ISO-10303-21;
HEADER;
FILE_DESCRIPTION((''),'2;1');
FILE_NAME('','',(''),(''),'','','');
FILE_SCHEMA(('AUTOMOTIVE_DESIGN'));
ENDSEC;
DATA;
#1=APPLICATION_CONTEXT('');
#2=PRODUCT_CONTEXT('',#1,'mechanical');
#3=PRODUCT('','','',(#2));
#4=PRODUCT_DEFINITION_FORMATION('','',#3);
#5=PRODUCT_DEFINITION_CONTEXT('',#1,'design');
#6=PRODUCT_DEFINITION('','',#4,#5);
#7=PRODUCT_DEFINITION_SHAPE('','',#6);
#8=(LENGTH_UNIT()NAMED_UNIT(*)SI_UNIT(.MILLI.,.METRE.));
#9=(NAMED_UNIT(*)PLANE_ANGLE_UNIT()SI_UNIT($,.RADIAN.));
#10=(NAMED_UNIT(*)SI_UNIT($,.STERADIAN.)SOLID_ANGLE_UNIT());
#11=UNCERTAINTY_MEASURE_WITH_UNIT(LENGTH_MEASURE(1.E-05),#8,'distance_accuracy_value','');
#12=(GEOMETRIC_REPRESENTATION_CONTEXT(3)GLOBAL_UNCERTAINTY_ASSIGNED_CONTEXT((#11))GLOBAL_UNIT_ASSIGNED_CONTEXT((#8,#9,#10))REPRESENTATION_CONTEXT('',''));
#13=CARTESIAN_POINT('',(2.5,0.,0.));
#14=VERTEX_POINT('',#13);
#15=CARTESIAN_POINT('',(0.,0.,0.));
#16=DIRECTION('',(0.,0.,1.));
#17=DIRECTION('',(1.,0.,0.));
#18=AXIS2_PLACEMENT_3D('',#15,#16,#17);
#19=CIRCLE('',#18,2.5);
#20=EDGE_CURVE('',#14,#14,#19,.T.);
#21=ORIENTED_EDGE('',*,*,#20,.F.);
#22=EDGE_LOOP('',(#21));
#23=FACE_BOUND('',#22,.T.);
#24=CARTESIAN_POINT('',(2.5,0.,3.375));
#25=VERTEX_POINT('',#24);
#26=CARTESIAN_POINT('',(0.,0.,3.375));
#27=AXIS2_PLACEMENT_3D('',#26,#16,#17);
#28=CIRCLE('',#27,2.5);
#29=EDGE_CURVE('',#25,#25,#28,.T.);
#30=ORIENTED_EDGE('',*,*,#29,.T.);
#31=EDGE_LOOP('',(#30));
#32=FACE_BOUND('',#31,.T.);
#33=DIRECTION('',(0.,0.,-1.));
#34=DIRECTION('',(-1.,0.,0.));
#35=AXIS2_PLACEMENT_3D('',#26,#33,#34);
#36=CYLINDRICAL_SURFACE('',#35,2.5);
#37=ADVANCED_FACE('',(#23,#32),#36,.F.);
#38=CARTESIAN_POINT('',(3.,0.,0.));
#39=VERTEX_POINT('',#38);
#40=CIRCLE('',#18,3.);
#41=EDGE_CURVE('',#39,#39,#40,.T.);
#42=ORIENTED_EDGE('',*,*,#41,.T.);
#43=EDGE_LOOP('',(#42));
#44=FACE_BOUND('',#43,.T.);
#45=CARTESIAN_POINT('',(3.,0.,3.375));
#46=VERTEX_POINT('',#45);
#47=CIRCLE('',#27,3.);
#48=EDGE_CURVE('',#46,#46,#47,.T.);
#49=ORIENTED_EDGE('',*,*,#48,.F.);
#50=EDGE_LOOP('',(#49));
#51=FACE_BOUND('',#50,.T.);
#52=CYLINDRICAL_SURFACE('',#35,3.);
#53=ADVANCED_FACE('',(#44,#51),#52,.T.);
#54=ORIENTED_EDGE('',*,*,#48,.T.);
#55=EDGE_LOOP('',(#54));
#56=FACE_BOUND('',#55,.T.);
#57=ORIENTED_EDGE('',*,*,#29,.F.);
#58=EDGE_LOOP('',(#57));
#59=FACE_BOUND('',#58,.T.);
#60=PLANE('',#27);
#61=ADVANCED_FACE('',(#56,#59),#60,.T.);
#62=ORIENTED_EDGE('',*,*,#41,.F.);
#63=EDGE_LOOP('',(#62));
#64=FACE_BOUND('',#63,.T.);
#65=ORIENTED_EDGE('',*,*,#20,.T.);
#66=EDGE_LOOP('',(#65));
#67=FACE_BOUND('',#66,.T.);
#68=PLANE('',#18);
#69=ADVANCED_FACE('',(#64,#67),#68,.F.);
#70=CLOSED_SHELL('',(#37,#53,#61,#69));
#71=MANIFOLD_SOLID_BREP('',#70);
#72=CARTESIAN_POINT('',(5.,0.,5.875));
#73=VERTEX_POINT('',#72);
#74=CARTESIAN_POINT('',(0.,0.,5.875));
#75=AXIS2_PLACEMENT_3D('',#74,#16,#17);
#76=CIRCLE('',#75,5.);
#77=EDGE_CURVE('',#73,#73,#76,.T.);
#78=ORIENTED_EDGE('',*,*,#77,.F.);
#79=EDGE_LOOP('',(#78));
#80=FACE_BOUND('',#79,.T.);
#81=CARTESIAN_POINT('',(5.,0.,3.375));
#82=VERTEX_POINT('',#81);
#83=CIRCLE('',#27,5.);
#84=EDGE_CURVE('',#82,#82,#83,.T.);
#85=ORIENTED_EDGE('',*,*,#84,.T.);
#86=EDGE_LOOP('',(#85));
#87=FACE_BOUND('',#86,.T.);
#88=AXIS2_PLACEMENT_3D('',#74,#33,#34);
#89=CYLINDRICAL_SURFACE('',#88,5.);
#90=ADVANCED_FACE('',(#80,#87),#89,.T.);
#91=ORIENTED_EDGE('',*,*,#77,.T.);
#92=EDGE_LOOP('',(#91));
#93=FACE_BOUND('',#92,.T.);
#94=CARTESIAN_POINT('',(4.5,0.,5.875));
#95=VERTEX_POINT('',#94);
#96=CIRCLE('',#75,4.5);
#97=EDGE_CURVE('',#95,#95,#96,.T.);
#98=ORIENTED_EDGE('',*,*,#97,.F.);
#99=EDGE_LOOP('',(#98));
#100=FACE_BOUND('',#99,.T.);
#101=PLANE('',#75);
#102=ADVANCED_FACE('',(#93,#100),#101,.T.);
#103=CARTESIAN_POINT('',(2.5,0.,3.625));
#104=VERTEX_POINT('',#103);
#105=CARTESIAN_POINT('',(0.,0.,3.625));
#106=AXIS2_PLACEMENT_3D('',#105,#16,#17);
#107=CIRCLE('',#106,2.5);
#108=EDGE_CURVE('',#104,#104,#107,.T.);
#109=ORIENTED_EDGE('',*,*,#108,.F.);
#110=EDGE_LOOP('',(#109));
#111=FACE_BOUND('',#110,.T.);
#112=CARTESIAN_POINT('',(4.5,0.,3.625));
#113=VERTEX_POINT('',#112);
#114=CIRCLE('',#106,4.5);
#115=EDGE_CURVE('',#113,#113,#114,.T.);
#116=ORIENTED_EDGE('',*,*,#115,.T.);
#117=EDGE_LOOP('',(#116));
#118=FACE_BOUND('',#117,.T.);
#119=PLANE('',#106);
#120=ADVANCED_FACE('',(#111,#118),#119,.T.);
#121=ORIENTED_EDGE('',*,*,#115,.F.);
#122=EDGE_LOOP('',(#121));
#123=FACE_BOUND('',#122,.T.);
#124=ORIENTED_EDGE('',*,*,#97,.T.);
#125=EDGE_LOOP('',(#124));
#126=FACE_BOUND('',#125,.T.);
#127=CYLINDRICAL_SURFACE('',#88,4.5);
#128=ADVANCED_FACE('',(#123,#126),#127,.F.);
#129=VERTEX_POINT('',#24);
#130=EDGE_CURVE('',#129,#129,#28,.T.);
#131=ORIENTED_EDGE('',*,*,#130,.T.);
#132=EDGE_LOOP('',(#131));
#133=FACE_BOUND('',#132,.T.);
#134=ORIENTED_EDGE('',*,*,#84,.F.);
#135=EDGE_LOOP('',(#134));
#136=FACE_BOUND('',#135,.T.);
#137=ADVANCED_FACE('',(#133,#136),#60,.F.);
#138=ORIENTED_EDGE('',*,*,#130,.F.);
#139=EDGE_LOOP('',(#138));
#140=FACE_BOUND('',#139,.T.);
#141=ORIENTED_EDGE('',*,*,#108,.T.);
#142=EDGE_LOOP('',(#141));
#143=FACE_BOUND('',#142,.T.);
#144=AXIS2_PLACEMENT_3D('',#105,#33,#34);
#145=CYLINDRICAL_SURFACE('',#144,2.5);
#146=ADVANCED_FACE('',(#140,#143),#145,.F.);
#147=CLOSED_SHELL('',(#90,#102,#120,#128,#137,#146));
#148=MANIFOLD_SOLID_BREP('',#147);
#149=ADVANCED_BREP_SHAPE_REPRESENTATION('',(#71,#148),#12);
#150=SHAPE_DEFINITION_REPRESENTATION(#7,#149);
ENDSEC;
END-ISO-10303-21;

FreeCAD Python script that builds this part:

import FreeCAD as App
import Part
import Sketcher

doc = App.newDocument("Part")
body = doc.addObject("PartDesign::Body", "Body")

# Sketch on XY plane
sketch1 = body.newObject("Sketcher::SketchObject", "Sketch")
sketch1.AttachmentSupport = (doc.getObject("XY_Plane"), [""])
sketch1.MapMode = "FlatFace"
sketch1.addGeometry([
    Part.Circle(App.Vector(0, 0, 0), App.Vector(0, 0, 1), 3),
    Part.Circle(App.Vector(0, 0, 0), App.Vector(0, 0, 1), 2.5),
], False)
sketch1.addConstraint([
    Sketcher.Constraint("Coincident", 0, 3, -1, 1),
    Sketcher.Constraint("Coincident", 1, 3, -1, 1),
    Sketcher.Constraint("Diameter", 0, 6.0),
    Sketcher.Constraint("Diameter", 1, 5.0),
])
pad1 = body.newObject("PartDesign::Pad", "Pad")
pad1.Profile = sketch1
pad1.Length = 3.375
body2 = doc.addObject("PartDesign::Body", "Body001")

# Sketch on XY plane
sketch2 = body2.newObject("Sketcher::SketchObject", "Sketch001")
sketch2.AttachmentSupport = (doc.getObject("XY_Plane001"), [""])
sketch2.MapMode = "FlatFace"
sketch2.AttachmentOffset = App.Placement(App.Vector(0, 0, 3.375), App.Rotation())
sketch2.addGeometry([
    Part.Circle(App.Vector(0, 0, 0), App.Vector(0, 0, 1), 5),
    Part.Circle(App.Vector(0, 0, 0), App.Vector(0, 0, 1), 4.5),
], False)
sketch2.addConstraint([
    Sketcher.Constraint("Coincident", 0, 3, -1, 1),
    Sketcher.Constraint("Coincident", 1, 3, -1, 1),
    Sketcher.Constraint("Diameter", 0, 10.0),
    Sketcher.Constraint("Diameter", 1, 9.0),
])
pad2 = body2.newObject("PartDesign::Pad", "Pad001")
pad2.Profile = sketch2
pad2.Length = 2.5

# Sketch on XY plane
sketch3 = body2.newObject("Sketcher::SketchObject", "Sketch002")
sketch3.AttachmentSupport = (doc.getObject("XY_Plane001"), [""])
sketch3.MapMode = "FlatFace"
sketch3.AttachmentOffset = App.Placement(App.Vector(0, 0, 3.375), App.Rotation())
sketch3.addGeometry([
    Part.Circle(App.Vector(0, 0, 0), App.Vector(0, 0, 1), 4.5),
    Part.Circle(App.Vector(0, 0, 0), App.Vector(0, 0, 1), 2.5),
], False)
sketch3.addConstraint([
    Sketcher.Constraint("Coincident", 0, 3, -1, 1),
    Sketcher.Constraint("Coincident", 1, 3, -1, 1),
    Sketcher.Constraint("Diameter", 0, 9.0),
    Sketcher.Constraint("Diameter", 1, 5.0),
])
pad3 = body2.newObject("PartDesign::Pad", "Pad002")
pad3.Profile = sketch3
pad3.Length = 0.25

doc.recompute()
